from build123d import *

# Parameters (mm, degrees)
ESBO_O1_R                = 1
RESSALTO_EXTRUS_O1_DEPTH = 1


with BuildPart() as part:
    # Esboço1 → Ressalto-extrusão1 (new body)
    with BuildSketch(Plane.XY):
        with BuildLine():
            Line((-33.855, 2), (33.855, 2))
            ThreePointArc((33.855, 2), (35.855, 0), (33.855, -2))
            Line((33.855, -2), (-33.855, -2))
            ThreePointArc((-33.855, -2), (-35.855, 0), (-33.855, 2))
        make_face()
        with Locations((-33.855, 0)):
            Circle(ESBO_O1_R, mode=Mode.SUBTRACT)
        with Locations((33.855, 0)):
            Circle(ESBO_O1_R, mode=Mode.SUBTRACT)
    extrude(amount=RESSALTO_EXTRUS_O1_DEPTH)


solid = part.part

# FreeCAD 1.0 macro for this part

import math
import FreeCAD as App
import Part
import Sketcher
Q = App.Units.Quantity

doc = App.newDocument("Part")
body = doc.addObject("PartDesign::Body", "Body")

# Sketch on XY plane
sketch1 = body.newObject("Sketcher::SketchObject", "Sketch")
sketch1.AttachmentSupport = (doc.getObject("XY_Plane"), [""])
sketch1.MapMode = "FlatFace"
sketch1.addGeometry([
    Part.LineSegment(App.Vector(33.9, 2, 0), App.Vector(-33.9, 2, 0)),  # 0
    Part.ArcOfCircle(Part.Circle(App.Vector(-33.9, 0, 0), App.Vector(0, 0, 1), 2), math.radians(90), math.radians(270)),  # 1
    Part.LineSegment(App.Vector(-33.9, -2, 0), App.Vector(33.9, -2, 0)),  # 2
    Part.ArcOfCircle(Part.Circle(App.Vector(33.9, 0, 0), App.Vector(0, 0, 1), 2), math.radians(-90), math.radians(90)),  # 3
    Part.Circle(App.Vector(33.9, 0, 0), App.Vector(0, 0, 1), 1),  # 4
    Part.Circle(App.Vector(-33.9, 0, 0), App.Vector(0, 0, 1), 1),  # 5
], False)
sketch1.addConstraint([
    Sketcher.Constraint("Tangent", 0, 2, 1, 1),
    Sketcher.Constraint("Tangent", 1, 2, 2, 1),
    Sketcher.Constraint("Tangent", 2, 2, 3, 1),
    Sketcher.Constraint("Tangent", 3, 2, 0, 1),
    Sketcher.Constraint("Horizontal", 0),
    Sketcher.Constraint("Horizontal", 2),
    Sketcher.Constraint("Coincident", 4, 3, 3, 3),
    Sketcher.Constraint("Coincident", 5, 3, 1, 3),
    Sketcher.Constraint("Equal", 4, 5),
    Sketcher.Constraint("Symmetric", 1, 3, 3, 3, -1, 1),
    Sketcher.Constraint("Diameter", 4, Q("2 mm")),
    Sketcher.Constraint("Radius", 1, Q("2 mm")),
    Sketcher.Constraint("DistanceX", 0, 2, 0, 1, Q("67.71 mm")),
])
pad1 = body.newObject("PartDesign::Pad", "Pad")
pad1.Profile = sketch1
pad1.Length = 1

doc.recompute()
